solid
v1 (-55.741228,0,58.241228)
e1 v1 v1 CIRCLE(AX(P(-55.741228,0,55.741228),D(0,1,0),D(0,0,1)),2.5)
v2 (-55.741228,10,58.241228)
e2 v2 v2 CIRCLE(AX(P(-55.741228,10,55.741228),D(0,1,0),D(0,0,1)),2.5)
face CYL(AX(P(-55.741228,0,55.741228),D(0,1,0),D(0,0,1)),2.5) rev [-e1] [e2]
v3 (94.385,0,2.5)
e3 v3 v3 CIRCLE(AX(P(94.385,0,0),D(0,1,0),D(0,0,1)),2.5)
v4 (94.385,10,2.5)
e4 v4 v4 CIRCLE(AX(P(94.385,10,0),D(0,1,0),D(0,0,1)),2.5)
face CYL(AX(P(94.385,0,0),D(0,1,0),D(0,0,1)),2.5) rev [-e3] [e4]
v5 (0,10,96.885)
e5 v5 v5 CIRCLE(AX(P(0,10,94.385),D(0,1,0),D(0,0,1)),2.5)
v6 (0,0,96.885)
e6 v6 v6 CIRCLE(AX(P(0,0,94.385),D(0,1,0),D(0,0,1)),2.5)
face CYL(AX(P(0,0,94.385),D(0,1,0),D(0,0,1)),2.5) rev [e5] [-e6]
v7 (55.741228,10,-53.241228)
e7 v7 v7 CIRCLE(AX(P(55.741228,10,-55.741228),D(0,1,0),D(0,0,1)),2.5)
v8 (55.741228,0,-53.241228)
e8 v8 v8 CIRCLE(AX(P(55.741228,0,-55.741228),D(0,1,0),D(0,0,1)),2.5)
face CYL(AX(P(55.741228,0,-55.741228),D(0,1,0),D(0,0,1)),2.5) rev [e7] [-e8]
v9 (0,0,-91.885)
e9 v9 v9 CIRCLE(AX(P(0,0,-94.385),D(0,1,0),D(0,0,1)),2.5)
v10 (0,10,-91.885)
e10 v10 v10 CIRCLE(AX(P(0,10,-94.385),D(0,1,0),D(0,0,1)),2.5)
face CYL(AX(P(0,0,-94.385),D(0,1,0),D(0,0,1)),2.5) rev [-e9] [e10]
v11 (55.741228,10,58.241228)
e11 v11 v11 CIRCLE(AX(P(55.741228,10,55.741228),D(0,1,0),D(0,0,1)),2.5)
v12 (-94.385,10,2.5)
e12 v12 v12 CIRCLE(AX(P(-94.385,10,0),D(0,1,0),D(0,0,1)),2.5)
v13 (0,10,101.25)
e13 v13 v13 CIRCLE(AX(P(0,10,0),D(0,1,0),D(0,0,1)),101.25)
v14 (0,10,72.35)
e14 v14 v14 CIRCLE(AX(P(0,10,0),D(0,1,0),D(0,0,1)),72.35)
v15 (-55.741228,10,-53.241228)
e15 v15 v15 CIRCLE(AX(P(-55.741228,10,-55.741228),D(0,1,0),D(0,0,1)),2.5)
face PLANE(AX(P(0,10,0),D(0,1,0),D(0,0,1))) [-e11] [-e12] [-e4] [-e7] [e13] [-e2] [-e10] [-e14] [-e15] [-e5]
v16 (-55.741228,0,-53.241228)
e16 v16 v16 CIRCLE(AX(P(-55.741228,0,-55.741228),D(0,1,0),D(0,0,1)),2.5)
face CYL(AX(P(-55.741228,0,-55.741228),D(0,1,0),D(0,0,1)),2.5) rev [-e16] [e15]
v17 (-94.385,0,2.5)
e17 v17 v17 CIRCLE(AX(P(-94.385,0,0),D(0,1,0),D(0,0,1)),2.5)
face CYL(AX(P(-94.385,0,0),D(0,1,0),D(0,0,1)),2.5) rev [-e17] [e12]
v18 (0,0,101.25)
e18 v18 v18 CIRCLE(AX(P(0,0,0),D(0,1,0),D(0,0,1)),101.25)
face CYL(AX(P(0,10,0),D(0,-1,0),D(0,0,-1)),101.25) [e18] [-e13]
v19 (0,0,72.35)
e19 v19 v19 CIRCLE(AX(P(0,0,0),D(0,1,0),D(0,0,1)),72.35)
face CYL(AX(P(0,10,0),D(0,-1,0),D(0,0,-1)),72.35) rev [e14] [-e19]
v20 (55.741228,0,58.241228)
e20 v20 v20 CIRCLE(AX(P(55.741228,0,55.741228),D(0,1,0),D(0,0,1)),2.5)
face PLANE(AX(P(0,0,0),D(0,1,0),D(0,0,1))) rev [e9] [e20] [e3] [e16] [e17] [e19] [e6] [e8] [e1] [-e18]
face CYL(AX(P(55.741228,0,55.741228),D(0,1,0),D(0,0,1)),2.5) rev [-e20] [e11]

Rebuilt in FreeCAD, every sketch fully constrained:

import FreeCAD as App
import Part
import Sketcher

V = App.Vector

doc = App.newDocument("Part")
params = doc.addObject("Spreadsheet::Sheet", "Params")
for row, (alias, value) in enumerate([
    ("sketch1_diameter", "202.5 mm"),
    ("sketch1_diameter2", "144.7 mm"),
    ("pad1_length", "10 mm"),
    ("sketch2_diameter", "5 mm"),
], start=1):
    params.set(f"A{row}", alias)
    params.set(f"B{row}", "=" + value)
    params.setAlias(f"B{row}", alias)

body = doc.addObject("PartDesign::Body", "Body")

# Sketch on XZ plane
sketch1 = body.newObject("Sketcher::SketchObject", "Sketch")
sketch1.AttachmentSupport = (doc.getObject("XZ_Plane"), [""])
sketch1.MapMode = "FlatFace"
sketch1.addGeometry(Part.Circle(V(0, 0, 0), V(0, 0, 1), 101), False)
sketch1.addGeometry(Part.Circle(V(0, 0, 0), V(0, 0, 1), 72), False)
sketch1.addConstraint(Sketcher.Constraint("Coincident", 0, 3, -1, 1))
sketch1.addConstraint(Sketcher.Constraint("Coincident", 1, 3, -1, 1))
sketch1.addConstraint(Sketcher.Constraint("Diameter", 0, 202.5))
sketch1.addConstraint(Sketcher.Constraint("Diameter", 1, 144.7))
sketch1.setExpression("Constraints[2]", "Params.sketch1_diameter")
sketch1.setExpression("Constraints[3]", "Params.sketch1_diameter2")
pad1 = body.newObject("PartDesign::Pad", "Pad")
pad1.Profile = sketch1
pad1.setExpression("Length", "Params.pad1_length")
pad1.Reversed = True

# Sketch on XZ plane
sketch2 = body.newObject("Sketcher::SketchObject", "Sketch001")
sketch2.AttachmentSupport = (doc.getObject("XZ_Plane"), [""])
sketch2.MapMode = "FlatFace"
sketch2.AttachmentOffset = App.Placement(V(0, 0, -10), App.Rotation())
sketch2.addGeometry(Part.Circle(V(0, -94.4, 0), V(0, 0, 1), 2.5), False)
sketch2.addGeometry(Part.Circle(V(55.7, -55.7, 0), V(0, 0, 1), 2.5), False)
sketch2.addGeometry(Part.Circle(V(94.4, 0, 0), V(0, 0, 1), 2.5), False)
sketch2.addGeometry(Part.Circle(V(0, 94.4, 0), V(0, 0, 1), 2.5), False)
sketch2.addGeometry(Part.Circle(V(-94.4, 0, 0), V(0, 0, 1), 2.5), False)
sketch2.addGeometry(Part.Circle(V(55.7, 55.7, 0), V(0, 0, 1), 2.5), False)
sketch2.addGeometry(Part.Circle(V(-55.7, 55.7, 0), V(0, 0, 1), 2.5), False)
sketch2.addGeometry(Part.Circle(V(-55.7, -55.7, 0), V(0, 0, 1), 2.5), False)
sketch2.addConstraint(Sketcher.Constraint("Equal", 0, 1))
sketch2.addConstraint(Sketcher.Constraint("Equal", 1, 2))
sketch2.addConstraint(Sketcher.Constraint("Equal", 2, 3))
sketch2.addConstraint(Sketcher.Constraint("Equal", 3, 4))
sketch2.addConstraint(Sketcher.Constraint("Equal", 4, 5))
sketch2.addConstraint(Sketcher.Constraint("Equal", 5, 6))
sketch2.addConstraint(Sketcher.Constraint("Equal", 6, 7))
sketch2.addConstraint(Sketcher.Constraint("Symmetric", 0, 3, 3, 3, -1, 1))
sketch2.addConstraint(Sketcher.Constraint("Symmetric", 2, 3, 4, 3, -1, 1))
sketch2.addConstraint(Sketcher.Constraint("Symmetric", 1, 3, 6, 3, -1, 1))
sketch2.addConstraint(Sketcher.Constraint("Symmetric", 5, 3, 7, 3, -1, 1))
sketch2.addConstraint(Sketcher.Constraint("Symmetric", 5, 3, 6, 3, -2))
sketch2.addConstraint(Sketcher.Constraint("PointOnObject", 0, 3, -2))
sketch2.addConstraint(Sketcher.Constraint("PointOnObject", 2, 3, -1))
sketch2.addConstraint(Sketcher.Constraint("Diameter", 0, 5.0))
sketch2.addConstraint(Sketcher.Constraint("DistanceY", 0, 3, 3, 3, 188.77))
sketch2.addConstraint(Sketcher.Constraint("DistanceX", 4, 3, 2, 3, 188.77))
sketch2.addConstraint(Sketcher.Constraint("DistanceX", -1, 1, 1, 3, 55.741228))
sketch2.addConstraint(Sketcher.Constraint("DistanceY", 1, 3, -1, 1, 55.741228))
sketch2.setExpression("Constraints[14]", "Params.sketch2_diameter")
pocket1 = body.newObject("PartDesign::Pocket", "Pocket")
pocket1.Profile = sketch2
pocket1.Type = "ThroughAll"
pocket1.Reversed = True

doc.recompute()
